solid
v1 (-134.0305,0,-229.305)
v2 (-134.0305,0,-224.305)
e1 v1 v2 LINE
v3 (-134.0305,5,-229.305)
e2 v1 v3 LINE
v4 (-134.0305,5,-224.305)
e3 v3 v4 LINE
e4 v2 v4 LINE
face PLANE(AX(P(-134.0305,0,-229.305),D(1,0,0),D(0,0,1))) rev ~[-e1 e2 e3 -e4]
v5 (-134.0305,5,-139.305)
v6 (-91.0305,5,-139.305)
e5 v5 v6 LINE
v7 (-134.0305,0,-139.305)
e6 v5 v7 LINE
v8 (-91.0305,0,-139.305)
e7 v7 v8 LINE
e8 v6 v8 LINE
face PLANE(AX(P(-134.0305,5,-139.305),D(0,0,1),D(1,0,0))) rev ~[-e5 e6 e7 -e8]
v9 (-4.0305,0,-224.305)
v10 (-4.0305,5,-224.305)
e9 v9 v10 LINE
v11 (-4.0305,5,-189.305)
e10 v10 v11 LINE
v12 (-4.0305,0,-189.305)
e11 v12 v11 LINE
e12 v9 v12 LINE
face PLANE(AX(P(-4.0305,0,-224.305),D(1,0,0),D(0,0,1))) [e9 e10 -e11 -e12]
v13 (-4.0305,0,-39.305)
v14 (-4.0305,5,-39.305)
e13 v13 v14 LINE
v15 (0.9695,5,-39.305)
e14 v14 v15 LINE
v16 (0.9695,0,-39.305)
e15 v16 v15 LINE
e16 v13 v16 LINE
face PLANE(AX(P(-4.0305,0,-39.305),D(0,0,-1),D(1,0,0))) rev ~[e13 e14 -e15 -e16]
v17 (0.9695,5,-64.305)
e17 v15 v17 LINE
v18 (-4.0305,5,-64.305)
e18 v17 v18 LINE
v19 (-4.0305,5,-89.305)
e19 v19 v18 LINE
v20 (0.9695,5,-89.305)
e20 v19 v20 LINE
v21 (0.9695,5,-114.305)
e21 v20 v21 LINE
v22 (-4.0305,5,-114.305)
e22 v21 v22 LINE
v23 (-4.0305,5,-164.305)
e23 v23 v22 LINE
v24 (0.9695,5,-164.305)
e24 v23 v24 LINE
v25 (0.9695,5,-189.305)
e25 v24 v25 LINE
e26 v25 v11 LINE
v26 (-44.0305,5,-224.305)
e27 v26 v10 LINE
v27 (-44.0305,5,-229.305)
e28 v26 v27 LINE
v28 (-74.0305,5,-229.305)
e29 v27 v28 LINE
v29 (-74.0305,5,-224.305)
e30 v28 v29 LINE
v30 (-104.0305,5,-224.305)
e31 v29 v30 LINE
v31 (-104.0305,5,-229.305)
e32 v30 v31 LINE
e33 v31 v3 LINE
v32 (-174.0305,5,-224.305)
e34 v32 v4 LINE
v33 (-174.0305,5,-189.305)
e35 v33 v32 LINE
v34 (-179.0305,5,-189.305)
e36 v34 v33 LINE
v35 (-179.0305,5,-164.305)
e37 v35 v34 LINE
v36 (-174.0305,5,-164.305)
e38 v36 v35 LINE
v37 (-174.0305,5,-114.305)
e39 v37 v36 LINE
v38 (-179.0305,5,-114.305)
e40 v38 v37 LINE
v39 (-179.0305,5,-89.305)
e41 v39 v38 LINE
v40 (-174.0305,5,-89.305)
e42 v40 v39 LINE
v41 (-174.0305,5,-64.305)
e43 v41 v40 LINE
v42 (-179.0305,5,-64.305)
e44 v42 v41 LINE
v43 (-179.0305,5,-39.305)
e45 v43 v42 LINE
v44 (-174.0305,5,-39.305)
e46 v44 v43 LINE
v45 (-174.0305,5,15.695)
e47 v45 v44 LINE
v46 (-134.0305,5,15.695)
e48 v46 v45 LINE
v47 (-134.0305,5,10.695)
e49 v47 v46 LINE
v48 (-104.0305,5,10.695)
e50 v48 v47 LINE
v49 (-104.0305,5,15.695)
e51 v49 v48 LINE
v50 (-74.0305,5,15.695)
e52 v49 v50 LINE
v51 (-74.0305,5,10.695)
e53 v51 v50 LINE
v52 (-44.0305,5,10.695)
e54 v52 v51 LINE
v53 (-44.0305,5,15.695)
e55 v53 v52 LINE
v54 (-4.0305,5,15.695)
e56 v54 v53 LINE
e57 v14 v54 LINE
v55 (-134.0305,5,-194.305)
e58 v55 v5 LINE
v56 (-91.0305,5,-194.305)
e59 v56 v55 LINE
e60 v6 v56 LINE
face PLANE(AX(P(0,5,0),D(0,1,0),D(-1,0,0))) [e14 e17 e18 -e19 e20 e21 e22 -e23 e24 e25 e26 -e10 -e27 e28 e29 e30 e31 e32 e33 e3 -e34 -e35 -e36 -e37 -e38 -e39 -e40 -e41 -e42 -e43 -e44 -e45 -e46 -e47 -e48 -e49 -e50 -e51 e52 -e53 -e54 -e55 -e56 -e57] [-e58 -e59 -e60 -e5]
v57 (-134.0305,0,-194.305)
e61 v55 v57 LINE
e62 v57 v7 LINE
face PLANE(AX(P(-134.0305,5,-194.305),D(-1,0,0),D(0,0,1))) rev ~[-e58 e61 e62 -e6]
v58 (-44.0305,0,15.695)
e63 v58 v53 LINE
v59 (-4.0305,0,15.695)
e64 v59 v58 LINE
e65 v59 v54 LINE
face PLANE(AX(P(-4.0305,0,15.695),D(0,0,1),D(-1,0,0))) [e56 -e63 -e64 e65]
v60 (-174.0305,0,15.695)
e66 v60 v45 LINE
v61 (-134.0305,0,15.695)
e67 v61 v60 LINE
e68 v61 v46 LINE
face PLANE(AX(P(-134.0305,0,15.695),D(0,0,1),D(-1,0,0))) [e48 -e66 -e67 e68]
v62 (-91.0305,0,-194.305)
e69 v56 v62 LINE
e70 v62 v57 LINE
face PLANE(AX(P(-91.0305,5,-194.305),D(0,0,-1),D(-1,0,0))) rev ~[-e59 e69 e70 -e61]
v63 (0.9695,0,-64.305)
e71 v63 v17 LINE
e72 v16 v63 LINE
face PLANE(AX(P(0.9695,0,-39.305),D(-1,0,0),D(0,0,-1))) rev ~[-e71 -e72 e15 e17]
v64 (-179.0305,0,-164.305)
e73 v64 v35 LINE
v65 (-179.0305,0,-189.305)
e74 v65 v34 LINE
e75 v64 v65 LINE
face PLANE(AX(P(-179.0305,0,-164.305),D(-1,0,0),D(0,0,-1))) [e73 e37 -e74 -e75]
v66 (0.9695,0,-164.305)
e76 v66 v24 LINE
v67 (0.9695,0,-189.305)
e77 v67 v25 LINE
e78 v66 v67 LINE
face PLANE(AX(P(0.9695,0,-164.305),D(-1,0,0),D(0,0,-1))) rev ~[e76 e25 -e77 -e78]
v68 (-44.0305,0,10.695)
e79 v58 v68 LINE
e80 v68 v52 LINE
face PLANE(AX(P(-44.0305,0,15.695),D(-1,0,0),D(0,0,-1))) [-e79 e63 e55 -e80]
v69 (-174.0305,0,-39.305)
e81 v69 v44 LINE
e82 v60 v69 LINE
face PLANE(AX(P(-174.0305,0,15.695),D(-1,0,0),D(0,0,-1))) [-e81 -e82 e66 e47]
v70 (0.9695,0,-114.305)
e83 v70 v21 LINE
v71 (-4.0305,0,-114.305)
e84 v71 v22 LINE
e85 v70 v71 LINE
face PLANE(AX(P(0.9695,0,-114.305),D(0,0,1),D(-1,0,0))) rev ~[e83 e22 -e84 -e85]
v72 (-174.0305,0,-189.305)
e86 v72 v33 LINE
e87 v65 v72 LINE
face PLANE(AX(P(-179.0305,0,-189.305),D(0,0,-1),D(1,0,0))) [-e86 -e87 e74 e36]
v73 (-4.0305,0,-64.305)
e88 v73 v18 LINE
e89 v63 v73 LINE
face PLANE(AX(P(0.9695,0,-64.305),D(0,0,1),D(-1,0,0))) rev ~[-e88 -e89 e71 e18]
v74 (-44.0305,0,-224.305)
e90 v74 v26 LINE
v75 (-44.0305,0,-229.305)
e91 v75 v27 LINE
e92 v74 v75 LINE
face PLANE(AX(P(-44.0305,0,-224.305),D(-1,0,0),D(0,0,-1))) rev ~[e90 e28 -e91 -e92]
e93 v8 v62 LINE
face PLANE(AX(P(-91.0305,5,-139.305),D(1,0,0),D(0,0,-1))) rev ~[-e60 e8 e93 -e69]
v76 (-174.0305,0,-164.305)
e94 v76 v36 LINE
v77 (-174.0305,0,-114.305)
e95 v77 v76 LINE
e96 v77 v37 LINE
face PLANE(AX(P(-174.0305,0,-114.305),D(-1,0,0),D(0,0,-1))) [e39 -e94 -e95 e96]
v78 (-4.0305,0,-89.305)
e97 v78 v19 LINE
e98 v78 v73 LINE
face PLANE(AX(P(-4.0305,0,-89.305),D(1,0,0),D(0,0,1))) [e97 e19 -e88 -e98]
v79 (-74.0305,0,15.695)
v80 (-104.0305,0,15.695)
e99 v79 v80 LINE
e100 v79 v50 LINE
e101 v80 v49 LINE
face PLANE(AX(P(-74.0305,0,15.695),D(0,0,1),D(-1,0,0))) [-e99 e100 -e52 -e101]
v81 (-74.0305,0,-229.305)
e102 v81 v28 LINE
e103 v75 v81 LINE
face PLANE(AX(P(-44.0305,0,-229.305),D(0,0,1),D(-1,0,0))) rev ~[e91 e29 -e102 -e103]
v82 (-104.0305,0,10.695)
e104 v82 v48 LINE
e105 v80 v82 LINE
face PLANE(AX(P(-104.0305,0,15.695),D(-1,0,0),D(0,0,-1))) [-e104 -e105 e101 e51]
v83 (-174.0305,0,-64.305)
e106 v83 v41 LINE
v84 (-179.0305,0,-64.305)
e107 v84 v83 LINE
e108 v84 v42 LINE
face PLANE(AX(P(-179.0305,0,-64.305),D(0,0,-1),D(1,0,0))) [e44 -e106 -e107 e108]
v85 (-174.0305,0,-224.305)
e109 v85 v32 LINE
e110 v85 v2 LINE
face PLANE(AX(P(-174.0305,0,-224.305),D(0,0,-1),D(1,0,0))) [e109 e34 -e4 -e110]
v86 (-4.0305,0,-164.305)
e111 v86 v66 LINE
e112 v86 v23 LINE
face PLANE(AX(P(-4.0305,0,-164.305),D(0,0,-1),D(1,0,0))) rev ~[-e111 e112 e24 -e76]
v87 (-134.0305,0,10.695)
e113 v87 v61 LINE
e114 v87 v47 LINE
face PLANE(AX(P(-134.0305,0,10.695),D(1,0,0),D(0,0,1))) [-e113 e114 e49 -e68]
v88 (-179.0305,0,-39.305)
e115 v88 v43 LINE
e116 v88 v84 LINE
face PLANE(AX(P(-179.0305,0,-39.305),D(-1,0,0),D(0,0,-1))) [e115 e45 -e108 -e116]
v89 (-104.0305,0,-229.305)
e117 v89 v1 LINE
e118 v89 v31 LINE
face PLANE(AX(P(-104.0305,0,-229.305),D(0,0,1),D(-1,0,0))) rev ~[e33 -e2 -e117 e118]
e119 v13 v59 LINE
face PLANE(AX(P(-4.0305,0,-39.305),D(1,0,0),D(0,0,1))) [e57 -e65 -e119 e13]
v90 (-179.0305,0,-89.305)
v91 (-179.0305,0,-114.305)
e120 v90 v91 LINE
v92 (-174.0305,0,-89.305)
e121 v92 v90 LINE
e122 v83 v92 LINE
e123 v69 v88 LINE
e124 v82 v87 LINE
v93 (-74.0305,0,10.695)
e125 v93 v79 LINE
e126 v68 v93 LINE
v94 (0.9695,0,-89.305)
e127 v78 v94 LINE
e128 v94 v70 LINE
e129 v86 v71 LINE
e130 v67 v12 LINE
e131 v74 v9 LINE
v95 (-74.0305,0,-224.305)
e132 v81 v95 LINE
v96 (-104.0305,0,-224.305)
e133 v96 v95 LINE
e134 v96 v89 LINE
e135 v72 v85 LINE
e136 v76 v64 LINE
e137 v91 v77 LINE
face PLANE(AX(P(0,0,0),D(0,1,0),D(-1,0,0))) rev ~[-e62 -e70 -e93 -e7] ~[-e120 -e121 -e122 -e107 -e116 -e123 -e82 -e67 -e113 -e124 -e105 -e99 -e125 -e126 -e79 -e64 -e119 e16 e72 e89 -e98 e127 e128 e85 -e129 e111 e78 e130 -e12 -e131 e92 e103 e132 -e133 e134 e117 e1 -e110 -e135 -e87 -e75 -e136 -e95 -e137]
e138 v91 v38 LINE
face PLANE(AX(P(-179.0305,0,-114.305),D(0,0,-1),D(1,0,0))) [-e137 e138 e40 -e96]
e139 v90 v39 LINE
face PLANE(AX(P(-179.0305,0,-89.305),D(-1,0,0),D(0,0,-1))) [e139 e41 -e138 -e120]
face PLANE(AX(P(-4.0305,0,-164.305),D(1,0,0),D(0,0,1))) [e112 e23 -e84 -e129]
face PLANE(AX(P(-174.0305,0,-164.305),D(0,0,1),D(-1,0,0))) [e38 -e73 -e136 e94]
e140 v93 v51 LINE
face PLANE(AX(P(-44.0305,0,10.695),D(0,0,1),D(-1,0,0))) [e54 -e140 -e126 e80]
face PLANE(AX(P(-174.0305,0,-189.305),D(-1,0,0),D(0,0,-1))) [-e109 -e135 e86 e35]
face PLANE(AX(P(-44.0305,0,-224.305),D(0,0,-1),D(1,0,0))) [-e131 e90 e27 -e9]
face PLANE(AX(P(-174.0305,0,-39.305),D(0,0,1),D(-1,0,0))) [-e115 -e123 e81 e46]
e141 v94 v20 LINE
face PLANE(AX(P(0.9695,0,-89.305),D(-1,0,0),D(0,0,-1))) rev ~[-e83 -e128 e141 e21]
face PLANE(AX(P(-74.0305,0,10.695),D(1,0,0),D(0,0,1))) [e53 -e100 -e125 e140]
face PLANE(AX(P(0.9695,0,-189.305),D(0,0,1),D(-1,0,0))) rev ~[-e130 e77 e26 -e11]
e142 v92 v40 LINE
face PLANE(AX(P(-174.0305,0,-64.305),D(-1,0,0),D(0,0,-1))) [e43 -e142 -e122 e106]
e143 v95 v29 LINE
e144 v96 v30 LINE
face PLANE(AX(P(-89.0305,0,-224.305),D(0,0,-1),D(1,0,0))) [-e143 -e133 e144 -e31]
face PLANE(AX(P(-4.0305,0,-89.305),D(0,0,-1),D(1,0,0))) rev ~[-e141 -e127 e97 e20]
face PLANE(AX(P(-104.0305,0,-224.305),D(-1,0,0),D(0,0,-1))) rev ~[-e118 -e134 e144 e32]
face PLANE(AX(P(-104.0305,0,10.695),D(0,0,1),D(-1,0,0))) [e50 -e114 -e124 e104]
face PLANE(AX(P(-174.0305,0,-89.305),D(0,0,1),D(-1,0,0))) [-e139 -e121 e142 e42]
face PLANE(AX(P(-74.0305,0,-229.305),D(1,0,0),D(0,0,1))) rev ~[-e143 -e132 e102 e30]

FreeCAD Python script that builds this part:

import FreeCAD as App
import Part
import Sketcher

V = App.Vector

doc = App.newDocument("Part")
body = doc.addObject("PartDesign::Body", "Body")

sketch1 = body.newObject("Sketcher::SketchObject", "Sketch")
sketch1.AttachmentSupport = (doc.getObject("XZ_Plane"), [""])
sketch1.MapMode = "FlatFace"
sketch1.addGeometry([
    Part.LineSegment(V(-44, 16, 0), V(-4, 16, 0)),
    Part.LineSegment(V(-4, 16, 0), V(-4, -39, 0)),
    Part.LineSegment(V(-4, -39, 0), V(1, -39, 0)),
    Part.LineSegment(V(1, -39, 0), V(1, -64, 0)),
    Part.LineSegment(V(1, -64, 0), V(-4, -64, 0)),
    Part.LineSegment(V(-4, -64, 0), V(-4, -89, 0)),
    Part.LineSegment(V(-4, -89, 0), V(1, -89, 0)),
    Part.LineSegment(V(1, -89, 0), V(1, -114, 0)),
    Part.LineSegment(V(1, -114, 0), V(-4, -114, 0)),
    Part.LineSegment(V(-4, -114, 0), V(-4, -164, 0)),
    Part.LineSegment(V(-4, -164, 0), V(1, -164, 0)),
    Part.LineSegment(V(1, -164, 0), V(1, -189, 0)),
    Part.LineSegment(V(1, -189, 0), V(-4, -189, 0)),
    Part.LineSegment(V(-4, -189, 0), V(-4, -224, 0)),
    Part.LineSegment(V(-4, -224, 0), V(-44, -224, 0)),
    Part.LineSegment(V(-44, -224, 0), V(-44, -229, 0)),
    Part.LineSegment(V(-44, -229, 0), V(-74, -229, 0)),
    Part.LineSegment(V(-74, -229, 0), V(-74, -224, 0)),
    Part.LineSegment(V(-74, -224, 0), V(-104, -224, 0)),
    Part.LineSegment(V(-104, -224, 0), V(-104, -229, 0)),
    Part.LineSegment(V(-104, -229, 0), V(-134, -229, 0)),
    Part.LineSegment(V(-134, -229, 0), V(-134, -224, 0)),
    Part.LineSegment(V(-134, -224, 0), V(-174, -224, 0)),
    Part.LineSegment(V(-174, -224, 0), V(-174, -189, 0)),
    Part.LineSegment(V(-174, -189, 0), V(-179, -189, 0)),
    Part.LineSegment(V(-179, -189, 0), V(-179, -164, 0)),
    Part.LineSegment(V(-179, -164, 0), V(-174, -164, 0)),
    Part.LineSegment(V(-174, -164, 0), V(-174, -114, 0)),
    Part.LineSegment(V(-174, -114, 0), V(-179, -114, 0)),
    Part.LineSegment(V(-179, -114, 0), V(-179, -89, 0)),
    Part.LineSegment(V(-179, -89, 0), V(-174, -89, 0)),
    Part.LineSegment(V(-174, -89, 0), V(-174, -64, 0)),
    Part.LineSegment(V(-174, -64, 0), V(-179, -64, 0)),
    Part.LineSegment(V(-179, -64, 0), V(-179, -39, 0)),
    Part.LineSegment(V(-179, -39, 0), V(-174, -39, 0)),
    Part.LineSegment(V(-174, -39, 0), V(-174, 16, 0)),
    Part.LineSegment(V(-174, 16, 0), V(-134, 16, 0)),
    Part.LineSegment(V(-134, 16, 0), V(-134, 11, 0)),
    Part.LineSegment(V(-134, 11, 0), V(-104, 11, 0)),
    Part.LineSegment(V(-104, 11, 0), V(-104, 16, 0)),
    Part.LineSegment(V(-104, 16, 0), V(-74, 16, 0)),
    Part.LineSegment(V(-74, 16, 0), V(-74, 11, 0)),
    Part.LineSegment(V(-74, 11, 0), V(-44, 11, 0)),
    Part.LineSegment(V(-44, 11, 0), V(-44, 16, 0)),
], False)
sketch1.addConstraint([
    Sketcher.Constraint("Coincident", 0, 2, 1, 1),
    Sketcher.Constraint("Coincident", 1, 2, 2, 1),
    Sketcher.Constraint("Coincident", 2, 2, 3, 1),
    Sketcher.Constraint("Coincident", 3, 2, 4, 1),
    Sketcher.Constraint("Coincident", 4, 2, 5, 1),
    Sketcher.Constraint("Coincident", 5, 2, 6, 1),
    Sketcher.Constraint("Coincident", 6, 2, 7, 1),
    Sketcher.Constraint("Coincident", 7, 2, 8, 1),
    Sketcher.Constraint("Coincident", 8, 2, 9, 1),
    Sketcher.Constraint("Coincident", 9, 2, 10, 1),
    Sketcher.Constraint("Coincident", 10, 2, 11, 1),
    Sketcher.Constraint("Coincident", 11, 2, 12, 1),
    Sketcher.Constraint("Coincident", 12, 2, 13, 1),
    Sketcher.Constraint("Coincident", 13, 2, 14, 1),
    Sketcher.Constraint("Coincident", 14, 2, 15, 1),
    Sketcher.Constraint("Coincident", 15, 2, 16, 1),
    Sketcher.Constraint("Coincident", 16, 2, 17, 1),
    Sketcher.Constraint("Coincident", 17, 2, 18, 1),
    Sketcher.Constraint("Coincident", 18, 2, 19, 1),
    Sketcher.Constraint("Coincident", 19, 2, 20, 1),
    Sketcher.Constraint("Coincident", 20, 2, 21, 1),
    Sketcher.Constraint("Coincident", 21, 2, 22, 1),
    Sketcher.Constraint("Coincident", 22, 2, 23, 1),
    Sketcher.Constraint("Coincident", 23, 2, 24, 1),
    Sketcher.Constraint("Coincident", 24, 2, 25, 1),
    Sketcher.Constraint("Coincident", 25, 2, 26, 1),
    Sketcher.Constraint("Coincident", 26, 2, 27, 1),
    Sketcher.Constraint("Coincident", 27, 2, 28, 1),
    Sketcher.Constraint("Coincident", 28, 2, 29, 1),
    Sketcher.Constraint("Coincident", 29, 2, 30, 1),
    Sketcher.Constraint("Coincident", 30, 2, 31, 1),
    Sketcher.Constraint("Coincident", 31, 2, 32, 1),
    Sketcher.Constraint("Coincident", 32, 2, 33, 1),
    Sketcher.Constraint("Coincident", 33, 2, 34, 1),
    Sketcher.Constraint("Coincident", 34, 2, 35, 1),
    Sketcher.Constraint("Coincident", 35, 2, 36, 1),
    Sketcher.Constraint("Coincident", 36, 2, 37, 1),
    Sketcher.Constraint("Coincident", 37, 2, 38, 1),
    Sketcher.Constraint("Coincident", 38, 2, 39, 1),
    Sketcher.Constraint("Coincident", 39, 2, 40, 1),
    Sketcher.Constraint("Coincident", 40, 2, 41, 1),
    Sketcher.Constraint("Coincident", 41, 2, 42, 1),
    Sketcher.Constraint("Coincident", 42, 2, 43, 1),
    Sketcher.Constraint("Coincident", 43, 2, 0, 1),
    Sketcher.Constraint("Horizontal", 0),
    Sketcher.Constraint("Vertical", 1),
    Sketcher.Constraint("Horizontal", 2),
    Sketcher.Constraint("Vertical", 3),
    Sketcher.Constraint("Horizontal", 4),
    Sketcher.Constraint("Vertical", 5),
    Sketcher.Constraint("Horizontal", 6),
    Sketcher.Constraint("Vertical", 7),
    Sketcher.Constraint("Horizontal", 8),
    Sketcher.Constraint("Vertical", 9),
    Sketcher.Constraint("Horizontal", 10),
    Sketcher.Constraint("Vertical", 11),
    Sketcher.Constraint("Horizontal", 12),
    Sketcher.Constraint("Vertical", 13),
    Sketcher.Constraint("Horizontal", 14),
    Sketcher.Constraint("Vertical", 15),
    Sketcher.Constraint("Horizontal", 16),
    Sketcher.Constraint("Vertical", 17),
    Sketcher.Constraint("Horizontal", 18),
    Sketcher.Constraint("Vertical", 19),
    Sketcher.Constraint("Horizontal", 20),
    Sketcher.Constraint("Vertical", 21),
    Sketcher.Constraint("Horizontal", 22),
    Sketcher.Constraint("Vertical", 23),
    Sketcher.Constraint("Horizontal", 24),
    Sketcher.Constraint("Vertical", 25),
    Sketcher.Constraint("Horizontal", 26),
    Sketcher.Constraint("Vertical", 27),
    Sketcher.Constraint("Horizontal", 28),
    Sketcher.Constraint("Vertical", 29),
    Sketcher.Constraint("Horizontal", 30),
    Sketcher.Constraint("Vertical", 31),
    Sketcher.Constraint("Horizontal", 32),
    Sketcher.Constraint("Vertical", 33),
    Sketcher.Constraint("Horizontal", 34),
    Sketcher.Constraint("Vertical", 35),
    Sketcher.Constraint("Horizontal", 36),
    Sketcher.Constraint("Vertical", 37),
    Sketcher.Constraint("Horizontal", 38),
    Sketcher.Constraint("Vertical", 39),
    Sketcher.Constraint("Horizontal", 40),
    Sketcher.Constraint("Vertical", 41),
    Sketcher.Constraint("Horizontal", 42),
    Sketcher.Constraint("Vertical", 43),
    Sketcher.Constraint("Horizontal", 14, 2, 17, 2),
    Sketcher.Constraint("Horizontal", 16, 2, 19, 2),
    Sketcher.Constraint("Horizontal", 18, 2, 21, 2),
    Sketcher.Constraint("Horizontal", 12, 2, 23, 2),
    Sketcher.Constraint("Horizontal", 10, 2, 25, 2),
    Sketcher.Constraint("Horizontal", 8, 2, 27, 2),
    Sketcher.Constraint("Horizontal", 6, 2, 29, 2),
    Sketcher.Constraint("Horizontal", 4, 2, 31, 2),
    Sketcher.Constraint("Horizontal", 2, 2, 33, 2),
    Sketcher.Constraint("Horizontal", 0, 2, 35, 2),
    Sketcher.Constraint("Horizontal", 36, 2, 39, 2),
    Sketcher.Constraint("Horizontal", 38, 2, 41, 2),
    Sketcher.Constraint("Vertical", 1, 2, 4, 2),
    Sketcher.Constraint("Vertical", 3, 2, 6, 2),
    Sketcher.Constraint("Vertical", 5, 2, 8, 2),
    Sketcher.Constraint("Vertical", 7, 2, 10, 2),
    Sketcher.Constraint("Vertical", 9, 2, 12, 2),
    Sketcher.Constraint("Vertical", 23, 2, 26, 2),
    Sketcher.Constraint("Vertical", 25, 2, 28, 2),
    Sketcher.Constraint("Vertical", 27, 2, 30, 2),
    Sketcher.Constraint("Vertical", 29, 2, 32, 2),
    Sketcher.Constraint("Vertical", 31, 2, 34, 2),
    Sketcher.Constraint("Vertical", 21, 2, 36, 2),
    Sketcher.Constraint("Vertical", 19, 2, 38, 2),
    Sketcher.Constraint("Vertical", 17, 2, 40, 2),
    Sketcher.Constraint("Vertical", 15, 2, 42, 2),
    Sketcher.Constraint("Equal", 16, 18),
    Sketcher.Constraint("Equal", 18, 20),
    Sketcher.Constraint("Equal", 14, 22),
    Sketcher.Constraint("Equal", 12, 24),
    Sketcher.Constraint("Equal", 3, 5),
    Sketcher.Constraint("Equal", 5, 7),
    Sketcher.Constraint("Equal", 7, 11),
    Sketcher.Constraint("Equal", 34, 15),
    Sketcher.Constraint("Equal", 21, 37),
    Sketcher.Constraint("DistanceX", 2, 1, 2, 2, 5.0),
    Sketcher.Constraint("DistanceX", 16, 2, 16, 1, 30.0),
    Sketcher.Constraint("DistanceY", 3, 2, 3, 1, 25.0),
    Sketcher.Constraint("DistanceY", 9, 2, 9, 1, 50.0),
    Sketcher.Constraint("DistanceY", 13, 2, 13, 1, 35.0),
    Sketcher.Constraint("DistanceY", 34, 2, 37, 2, 50.0),
    Sketcher.Constraint("DistanceX", 0, 1, 0, 2, 40.0),
    Sketcher.Constraint("DistanceY", -1, 1, 0, 2, 15.695),
    Sketcher.Constraint("DistanceX", 0, 2, -1, 1, 4.0305),
])
pad1 = body.newObject("PartDesign::Pad", "Pad")
pad1.Profile = sketch1
pad1.Length = 5
pad1.Reversed = True

sketch2 = body.newObject("Sketcher::SketchObject", "Sketch001")
sketch2.AttachmentSupport = (doc.getObject("XZ_Plane"), [""])
sketch2.MapMode = "FlatFace"
sketch2.AttachmentOffset = App.Placement(V(0, 0, -5), App.Rotation())
sketch2.addGeometry([
    Part.LineSegment(V(-134, -194, 0), V(-134, -139, 0)),
    Part.LineSegment(V(-134, -139, 0), V(-91, -139, 0)),
    Part.LineSegment(V(-91, -139, 0), V(-91, -194, 0)),
    Part.LineSegment(V(-91, -194, 0), V(-134, -194, 0)),
], False)
sketch2.addConstraint([
    Sketcher.Constraint("Coincident", 0, 2, 1, 1),
    Sketcher.Constraint("Coincident", 1, 2, 2, 1),
    Sketcher.Constraint("Coincident", 2, 2, 3, 1),
    Sketcher.Constraint("Coincident", 3, 2, 0, 1),
    Sketcher.Constraint("Vertical", 0),
    Sketcher.Constraint("Horizontal", 1),
    Sketcher.Constraint("Vertical", 2),
    Sketcher.Constraint("Horizontal", 3),
    Sketcher.Constraint("DistanceX", 1, 1, 1, 2, 43.0),
    Sketcher.Constraint("DistanceY", 0, 1, 0, 2, 55.0),
    Sketcher.Constraint("DistanceY", 0, 2, -1, 1, 139.305),
    Sketcher.Constraint("DistanceX", 0, 2, -1, 1, 134.0305),
])
pocket1 = body.newObject("PartDesign::Pocket", "Pocket")
pocket1.Profile = sketch2
pocket1.Length = 5
pocket1.Reversed = True

doc.recompute()
